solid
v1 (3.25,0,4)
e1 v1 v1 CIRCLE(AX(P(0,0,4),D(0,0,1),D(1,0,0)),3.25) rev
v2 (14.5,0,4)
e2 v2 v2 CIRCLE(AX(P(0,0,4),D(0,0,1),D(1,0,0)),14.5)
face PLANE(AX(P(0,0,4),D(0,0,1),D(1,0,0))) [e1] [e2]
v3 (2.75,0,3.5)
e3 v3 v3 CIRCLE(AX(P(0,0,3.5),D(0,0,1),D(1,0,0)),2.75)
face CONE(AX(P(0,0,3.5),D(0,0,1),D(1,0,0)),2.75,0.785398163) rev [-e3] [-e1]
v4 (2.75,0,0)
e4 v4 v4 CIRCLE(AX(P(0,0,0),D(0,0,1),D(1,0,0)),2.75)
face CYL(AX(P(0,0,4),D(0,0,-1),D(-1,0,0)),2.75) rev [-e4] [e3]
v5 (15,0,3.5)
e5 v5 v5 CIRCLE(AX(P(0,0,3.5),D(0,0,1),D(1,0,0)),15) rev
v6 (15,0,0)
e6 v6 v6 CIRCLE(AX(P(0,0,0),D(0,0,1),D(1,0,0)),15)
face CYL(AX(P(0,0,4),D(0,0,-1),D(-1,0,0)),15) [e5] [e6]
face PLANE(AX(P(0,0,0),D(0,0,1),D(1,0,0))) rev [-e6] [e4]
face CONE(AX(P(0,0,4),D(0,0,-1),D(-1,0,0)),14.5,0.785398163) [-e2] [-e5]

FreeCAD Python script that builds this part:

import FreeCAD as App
import Part
import Sketcher

V = App.Vector
Q = App.Units.Quantity


def edges_at(feature, points):
    """Names of the edges that pass closest to the given points."""
    edges = feature.Shape.Edges
    near = lambda p: min(range(len(edges)), key=lambda i: edges[i].distToShape(Part.Vertex(*p))[0])
    return sorted({f"Edge{near(p) + 1}" for p in points})

doc = App.newDocument("Part")
body = doc.addObject("PartDesign::Body", "Body")

# Sketch on XY plane
sketch1 = doc.addObject("Sketcher::SketchObject", "Sketch")
body.addObject(sketch1)
sketch1.AttachmentSupport = (doc.XY_Plane, [""])
sketch1.MapMode = "FlatFace"
sketch1.addGeometry([
    Part.Circle(V(0, 0, 0), V(0, 0, 1), 15),
    Part.Circle(V(0, 0, 0), V(0, 0, 1), 2.75),
], False)
sketch1.addConstraint([
    Sketcher.Constraint("Coincident", 0, 3, -1, 1),
    Sketcher.Constraint("Coincident", 1, 3, -1, 1),
    Sketcher.Constraint("Diameter", 0, Q("30 mm")),
    Sketcher.Constraint("Diameter", 1, Q("5.5 mm")),
])
pad1 = doc.addObject("PartDesign::Pad", "Pad")
body.addObject(pad1)
pad1.Profile = sketch1
pad1.Length = 4
doc.recompute()

chamfer = doc.addObject("PartDesign::Chamfer", "Chamfer")
body.addObject(chamfer)
chamfer.Base = (pad1, edges_at(pad1, [(-15, 0, 4), (-2.75, 0, 4)]))
chamfer.Size = 0.5

doc.recompute()
